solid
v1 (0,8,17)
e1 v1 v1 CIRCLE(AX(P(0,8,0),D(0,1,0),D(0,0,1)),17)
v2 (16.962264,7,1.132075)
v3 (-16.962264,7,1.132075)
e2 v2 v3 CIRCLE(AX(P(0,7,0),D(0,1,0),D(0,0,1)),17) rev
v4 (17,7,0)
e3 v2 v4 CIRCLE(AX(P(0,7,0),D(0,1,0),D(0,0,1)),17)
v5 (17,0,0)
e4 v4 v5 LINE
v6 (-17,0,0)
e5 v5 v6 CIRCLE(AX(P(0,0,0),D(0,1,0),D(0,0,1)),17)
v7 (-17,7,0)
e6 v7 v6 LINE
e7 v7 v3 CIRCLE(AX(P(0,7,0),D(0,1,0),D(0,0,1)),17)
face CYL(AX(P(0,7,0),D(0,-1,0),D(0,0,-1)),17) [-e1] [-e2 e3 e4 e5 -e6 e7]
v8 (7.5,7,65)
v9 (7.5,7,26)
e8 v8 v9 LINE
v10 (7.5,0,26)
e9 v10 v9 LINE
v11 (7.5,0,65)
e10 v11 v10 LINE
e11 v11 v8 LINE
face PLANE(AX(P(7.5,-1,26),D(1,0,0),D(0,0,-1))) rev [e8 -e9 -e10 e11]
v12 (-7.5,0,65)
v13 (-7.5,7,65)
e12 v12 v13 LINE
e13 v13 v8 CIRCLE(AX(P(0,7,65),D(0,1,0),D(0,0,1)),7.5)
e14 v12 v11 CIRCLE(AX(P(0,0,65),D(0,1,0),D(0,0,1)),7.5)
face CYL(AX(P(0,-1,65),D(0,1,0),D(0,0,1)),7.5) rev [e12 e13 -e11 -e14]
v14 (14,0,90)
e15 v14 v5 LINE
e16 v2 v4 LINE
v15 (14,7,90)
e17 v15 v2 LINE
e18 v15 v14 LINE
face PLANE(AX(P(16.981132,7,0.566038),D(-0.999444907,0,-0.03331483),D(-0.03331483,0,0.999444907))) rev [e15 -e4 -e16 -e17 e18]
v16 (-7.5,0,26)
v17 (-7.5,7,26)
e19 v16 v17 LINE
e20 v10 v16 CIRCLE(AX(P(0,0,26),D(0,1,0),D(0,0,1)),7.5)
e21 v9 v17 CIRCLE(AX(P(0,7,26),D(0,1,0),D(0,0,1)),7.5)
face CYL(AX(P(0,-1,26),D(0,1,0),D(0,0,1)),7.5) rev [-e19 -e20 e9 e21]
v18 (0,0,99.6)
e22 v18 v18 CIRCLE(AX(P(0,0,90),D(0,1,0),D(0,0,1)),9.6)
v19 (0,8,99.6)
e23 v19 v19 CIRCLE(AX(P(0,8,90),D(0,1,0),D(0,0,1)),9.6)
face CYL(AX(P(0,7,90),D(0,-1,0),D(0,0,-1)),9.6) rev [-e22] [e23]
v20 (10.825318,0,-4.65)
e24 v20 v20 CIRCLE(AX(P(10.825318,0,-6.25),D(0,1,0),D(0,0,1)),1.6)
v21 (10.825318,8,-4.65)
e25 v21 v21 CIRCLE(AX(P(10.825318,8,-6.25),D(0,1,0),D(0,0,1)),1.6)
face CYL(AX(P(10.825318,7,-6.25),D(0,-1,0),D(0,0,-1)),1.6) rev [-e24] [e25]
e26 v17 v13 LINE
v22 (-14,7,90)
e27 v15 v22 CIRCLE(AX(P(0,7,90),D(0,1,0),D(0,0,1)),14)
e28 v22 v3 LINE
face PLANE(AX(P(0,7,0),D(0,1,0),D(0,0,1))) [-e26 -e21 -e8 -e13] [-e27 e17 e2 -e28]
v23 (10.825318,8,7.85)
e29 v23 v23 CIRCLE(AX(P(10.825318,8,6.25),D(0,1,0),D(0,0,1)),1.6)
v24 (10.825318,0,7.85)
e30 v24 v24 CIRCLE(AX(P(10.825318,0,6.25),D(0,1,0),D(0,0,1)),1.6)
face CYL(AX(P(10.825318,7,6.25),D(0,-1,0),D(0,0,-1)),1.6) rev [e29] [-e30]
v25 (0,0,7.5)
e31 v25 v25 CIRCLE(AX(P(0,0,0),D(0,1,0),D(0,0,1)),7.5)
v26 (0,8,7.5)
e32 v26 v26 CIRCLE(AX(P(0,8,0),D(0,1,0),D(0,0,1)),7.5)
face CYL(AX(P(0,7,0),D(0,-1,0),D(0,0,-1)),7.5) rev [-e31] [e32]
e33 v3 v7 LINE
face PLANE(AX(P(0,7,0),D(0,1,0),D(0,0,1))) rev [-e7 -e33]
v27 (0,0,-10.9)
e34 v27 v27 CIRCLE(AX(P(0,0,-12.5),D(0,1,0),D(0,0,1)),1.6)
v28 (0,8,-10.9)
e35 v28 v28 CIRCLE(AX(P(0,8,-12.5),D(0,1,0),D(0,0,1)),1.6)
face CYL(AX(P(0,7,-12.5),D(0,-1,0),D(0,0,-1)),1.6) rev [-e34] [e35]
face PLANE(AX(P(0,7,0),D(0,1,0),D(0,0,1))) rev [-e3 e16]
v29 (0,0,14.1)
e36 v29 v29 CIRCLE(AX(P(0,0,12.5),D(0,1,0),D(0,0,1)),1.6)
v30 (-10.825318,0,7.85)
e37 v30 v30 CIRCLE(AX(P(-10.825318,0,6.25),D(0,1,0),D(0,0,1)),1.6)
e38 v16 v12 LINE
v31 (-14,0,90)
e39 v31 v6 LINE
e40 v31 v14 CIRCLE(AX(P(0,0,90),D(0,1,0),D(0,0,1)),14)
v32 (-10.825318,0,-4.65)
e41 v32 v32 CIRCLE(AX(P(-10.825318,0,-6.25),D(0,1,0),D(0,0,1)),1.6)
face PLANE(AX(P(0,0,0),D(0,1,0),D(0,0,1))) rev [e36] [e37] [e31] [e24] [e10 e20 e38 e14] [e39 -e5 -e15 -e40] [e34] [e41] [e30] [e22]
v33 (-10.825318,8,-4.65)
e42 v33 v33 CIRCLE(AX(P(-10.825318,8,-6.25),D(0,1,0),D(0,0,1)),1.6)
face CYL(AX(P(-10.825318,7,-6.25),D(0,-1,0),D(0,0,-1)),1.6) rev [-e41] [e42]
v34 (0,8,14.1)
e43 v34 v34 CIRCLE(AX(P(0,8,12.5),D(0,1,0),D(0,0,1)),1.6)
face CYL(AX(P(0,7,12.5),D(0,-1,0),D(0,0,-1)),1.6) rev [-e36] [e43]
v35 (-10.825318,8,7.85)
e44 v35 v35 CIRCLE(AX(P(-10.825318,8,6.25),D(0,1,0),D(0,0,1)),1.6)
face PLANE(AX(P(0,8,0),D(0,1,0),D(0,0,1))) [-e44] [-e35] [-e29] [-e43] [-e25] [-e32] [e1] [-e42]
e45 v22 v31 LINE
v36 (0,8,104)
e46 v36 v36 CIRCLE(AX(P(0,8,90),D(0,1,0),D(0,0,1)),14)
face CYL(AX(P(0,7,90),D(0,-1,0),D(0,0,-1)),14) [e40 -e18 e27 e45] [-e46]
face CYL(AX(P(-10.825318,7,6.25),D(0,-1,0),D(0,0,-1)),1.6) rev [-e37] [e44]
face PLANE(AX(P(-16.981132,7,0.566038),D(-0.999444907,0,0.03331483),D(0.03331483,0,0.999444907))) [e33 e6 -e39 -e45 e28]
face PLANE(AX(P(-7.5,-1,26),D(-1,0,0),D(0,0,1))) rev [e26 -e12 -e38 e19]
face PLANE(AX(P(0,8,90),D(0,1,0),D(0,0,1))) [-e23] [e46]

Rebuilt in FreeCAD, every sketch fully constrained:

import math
import FreeCAD as App
import Part
import Sketcher
from FreeCAD import Vector

doc = App.newDocument("Part")
body = doc.addObject("PartDesign::Body", "Body")

# Sketch on XZ plane
sketch1 = body.newObject("Sketcher::SketchObject", "Sketch")
sketch1.AttachmentSupport = (doc.getObject("XZ_Plane"), [""])
sketch1.MapMode = "FlatFace"
sketch1.addGeometry([
    Part.LineSegment(Vector(-17, 1.1, 0), Vector(-14, 90, 0)),  # 0
    Part.ArcOfCircle(Part.Circle(Vector(0, 90, 0), Vector(0, 0, 1), 14), math.radians(0), math.radians(180)),  # 1
    Part.LineSegment(Vector(14, 90, 0), Vector(17, 1.1, 0)),  # 2
    Part.LineSegment(Vector(17, 1.1, 0), Vector(17, 0, 0)),  # 3
    Part.ArcOfCircle(Part.Circle(Vector(0, 0, 0), Vector(0, 0, 1), 17), math.radians(180), math.radians(360)),  # 4
    Part.LineSegment(Vector(-17, 0, 0), Vector(-17, 1.1, 0)),  # 5
    Part.Circle(Vector(0, 90, 0), Vector(0, 0, 1), 9.6),  # 6
    Part.Circle(Vector(0, -12.5, 0), Vector(0, 0, 1), 1.6),  # 7
    Part.Circle(Vector(-10.8, 6.2, 0), Vector(0, 0, 1), 1.6),  # 8
    Part.Circle(Vector(0, 12.5, 0), Vector(0, 0, 1), 1.6),  # 9
    Part.Circle(Vector(10.8, 6.2, 0), Vector(0, 0, 1), 1.6),  # 10
    Part.Circle(Vector(-10.8, -6.2, 0), Vector(0, 0, 1), 1.6),  # 11
    Part.Circle(Vector(0, 0, 0), Vector(0, 0, 1), 7.5),  # 12
    Part.Circle(Vector(10.8, -6.2, 0), Vector(0, 0, 1), 1.6),  # 13
], False)
sketch1.addConstraint([
    Sketcher.Constraint("Coincident", 0, 2, 1, 2),
    Sketcher.Constraint("Coincident", 1, 1, 2, 1),
    Sketcher.Constraint("Coincident", 2, 2, 3, 1),
    Sketcher.Constraint("Coincident", 3, 2, 4, 2),
    Sketcher.Constraint("Coincident", 4, 1, 5, 1),
    Sketcher.Constraint("Coincident", 5, 2, 0, 1),
    Sketcher.Constraint("Coincident", 4, 3, -1, 1),
    Sketcher.Constraint("Coincident", 12, 3, -1, 1),
    Sketcher.Constraint("Coincident", 6, 3, 1, 3),
    Sketcher.Constraint("Equal", 7, 8),
    Sketcher.Constraint("Equal", 8, 9),
    Sketcher.Constraint("Equal", 9, 10),
    Sketcher.Constraint("Equal", 10, 11),
    Sketcher.Constraint("Equal", 11, 13),
    Sketcher.Constraint("Symmetric", 7, 3, 9, 3, -1, 1),
    Sketcher.Constraint("Symmetric", 10, 3, 11, 3, -1, 1),
    Sketcher.Constraint("Symmetric", 8, 3, 13, 3, -1, 1),
    Sketcher.Constraint("Symmetric", 8, 3, 10, 3, -2),
    Sketcher.Constraint("Symmetric", 0, 2, 1, 1, -2),
    Sketcher.Constraint("Symmetric", 2, 2, 5, 2, -2),
    Sketcher.Constraint("PointOnObject", 7, 3, -2),
    Sketcher.Constraint("PointOnObject", 3, 2, -1),
    Sketcher.Constraint("PointOnObject", 4, 1, -1),
    Sketcher.Constraint("Parallel", 2, 3),
    Sketcher.Constraint("Horizontal", 6, 3, 0, 2),
    Sketcher.Constraint("Diameter", 12, 15.0),
    Sketcher.Constraint("Radius", 1, 14.0),
    Sketcher.Constraint("Radius", 4, 17.0),
    Sketcher.Constraint("Diameter", 6, 19.2),
    Sketcher.Constraint("Diameter", 7, 3.2),
    Sketcher.Constraint("DistanceY", -1, 1, 1, 3, 90.0),
    Sketcher.Constraint("DistanceY", 7, 3, 9, 3, 25.0),
    Sketcher.Constraint("DistanceY", 11, 3, 8, 3, 12.5),
    Sketcher.Constraint("Distance", 0, 88.917282),
    Sketcher.Constraint("DistanceX", 8, 3, -1, 1, 10.825318),
])
pad1 = body.newObject("PartDesign::Pad", "Pad")
pad1.Profile = sketch1
pad1.Length = 7
pad1.Reversed = True

# Sketch on XZ plane
sketch2 = body.newObject("Sketcher::SketchObject", "Sketch001")
sketch2.AttachmentSupport = (doc.getObject("XZ_Plane"), [""])
sketch2.MapMode = "FlatFace"
sketch2.AttachmentOffset = App.Placement(Vector(0, 0, -7), App.Rotation())
sketch2.addGeometry([
    Part.LineSegment(Vector(8, 65, 0), Vector(8, 26, 0)),
    Part.ArcOfCircle(Part.Circle(Vector(0, 26, 0), Vector(0, 0, 1), 8), math.radians(180), math.radians(360)),
    Part.LineSegment(Vector(-8, 26, 0), Vector(-8, 65, 0)),
    Part.ArcOfCircle(Part.Circle(Vector(0, 65, 0), Vector(0, 0, 1), 8), math.radians(0), math.radians(180)),
], False)
sketch2.addConstraint([
    Sketcher.Constraint("Tangent", 0, 2, 1, 2),
    Sketcher.Constraint("Tangent", 1, 1, 2, 1),
    Sketcher.Constraint("Tangent", 2, 2, 3, 2),
    Sketcher.Constraint("Tangent", 3, 1, 0, 1),
    Sketcher.Constraint("Vertical", 0),
    Sketcher.Constraint("Vertical", 2),
    Sketcher.Constraint("PointOnObject", 1, 3, -2),
    Sketcher.Constraint("Radius", 1, 7.5),
    Sketcher.Constraint("DistanceY", 0, 2, 0, 1, 39.0),
    Sketcher.Constraint("DistanceY", -1, 1, 1, 3, 26.0),
])
pocket1 = body.newObject("PartDesign::Pocket", "Pocket")
pocket1.Profile = sketch2
pocket1.Length = 8
pocket1.Reversed = True

# Sketch on XZ plane
sketch3 = body.newObject("Sketcher::SketchObject", "Sketch002")
sketch3.AttachmentSupport = (doc.getObject("XZ_Plane"), [""])
sketch3.MapMode = "FlatFace"
sketch3.AttachmentOffset = App.Placement(Vector(0, 0, -7), App.Rotation())
sketch3.addGeometry([
    Part.Circle(Vector(0, 90, 0), Vector(0, 0, 1), 14),
    Part.Circle(Vector(0, 90, 0), Vector(0, 0, 1), 10),
], False)
sketch3.addConstraint([
    Sketcher.Constraint("Coincident", 1, 3, 0, 3),
    Sketcher.Constraint("PointOnObject", 0, 3, -2),
    Sketcher.Constraint("Diameter", 0, 28.0),
    Sketcher.Constraint("Diameter", 1, 19.2),
    Sketcher.Constraint("DistanceY", -1, 1, 0, 3, 90.0),
])
pad2 = body.newObject("PartDesign::Pad", "Pad001")
pad2.Profile = sketch3
pad2.Length = 1
pad2.Reversed = True

# Sketch on XZ plane
sketch4 = body.newObject("Sketcher::SketchObject", "Sketch003")
sketch4.AttachmentSupport = (doc.getObject("XZ_Plane"), [""])
sketch4.MapMode = "FlatFace"
sketch4.AttachmentOffset = App.Placement(Vector(0, 0, -7), App.Rotation())
sketch4.addGeometry([
    Part.Circle(Vector(0, 0, 0), Vector(0, 0, 1), 17),  # 0
    Part.Circle(Vector(-10.8, 6.2, 0), Vector(0, 0, 1), 1.6),  # 1
    Part.Circle(Vector(0, 12.5, 0), Vector(0, 0, 1), 1.6),  # 2
    Part.Circle(Vector(10.8, 6.2, 0), Vector(0, 0, 1), 1.6),  # 3
    Part.Circle(Vector(-10.8, -6.2, 0), Vector(0, 0, 1), 1.6),  # 4
    Part.Circle(Vector(0, 0, 0), Vector(0, 0, 1), 7.5),  # 5
    Part.Circle(Vector(10.8, -6.2, 0), Vector(0, 0, 1), 1.6),  # 6
    Part.Circle(Vector(0, -12.5, 0), Vector(0, 0, 1), 1.6),  # 7
], False)
sketch4.addConstraint([
    Sketcher.Constraint("Coincident", 0, 3, -1, 1),
    Sketcher.Constraint("Coincident", 5, 3, -1, 1),
    Sketcher.Constraint("Equal", 1, 2),
    Sketcher.Constraint("Equal", 2, 3),
    Sketcher.Constraint("Equal", 3, 4),
    Sketcher.Constraint("Equal", 4, 6),
    Sketcher.Constraint("Equal", 6, 7),
    Sketcher.Constraint("Symmetric", 3, 3, 4, 3, -1, 1),
    Sketcher.Constraint("Symmetric", 1, 3, 6, 3, -1, 1),
    Sketcher.Constraint("Symmetric", 2, 3, 7, 3, -1, 1),
    Sketcher.Constraint("Symmetric", 1, 3, 3, 3, -2),
    Sketcher.Constraint("PointOnObject", 2, 3, -2),
    Sketcher.Constraint("Diameter", 0, 34.0),
    Sketcher.Constraint("Diameter", 5, 15.0),
    Sketcher.Constraint("Diameter", 1, 3.2),
    Sketcher.Constraint("DistanceY", -1, 1, 2, 3, 12.5),
    Sketcher.Constraint("DistanceY", 4, 3, 1, 3, 12.5),
    Sketcher.Constraint("DistanceX", 1, 3, -1, 1, 10.825318),
])
pad3 = body.newObject("PartDesign::Pad", "Pad002")
pad3.Profile = sketch4
pad3.Length = 1
pad3.Reversed = True

doc.recompute()
